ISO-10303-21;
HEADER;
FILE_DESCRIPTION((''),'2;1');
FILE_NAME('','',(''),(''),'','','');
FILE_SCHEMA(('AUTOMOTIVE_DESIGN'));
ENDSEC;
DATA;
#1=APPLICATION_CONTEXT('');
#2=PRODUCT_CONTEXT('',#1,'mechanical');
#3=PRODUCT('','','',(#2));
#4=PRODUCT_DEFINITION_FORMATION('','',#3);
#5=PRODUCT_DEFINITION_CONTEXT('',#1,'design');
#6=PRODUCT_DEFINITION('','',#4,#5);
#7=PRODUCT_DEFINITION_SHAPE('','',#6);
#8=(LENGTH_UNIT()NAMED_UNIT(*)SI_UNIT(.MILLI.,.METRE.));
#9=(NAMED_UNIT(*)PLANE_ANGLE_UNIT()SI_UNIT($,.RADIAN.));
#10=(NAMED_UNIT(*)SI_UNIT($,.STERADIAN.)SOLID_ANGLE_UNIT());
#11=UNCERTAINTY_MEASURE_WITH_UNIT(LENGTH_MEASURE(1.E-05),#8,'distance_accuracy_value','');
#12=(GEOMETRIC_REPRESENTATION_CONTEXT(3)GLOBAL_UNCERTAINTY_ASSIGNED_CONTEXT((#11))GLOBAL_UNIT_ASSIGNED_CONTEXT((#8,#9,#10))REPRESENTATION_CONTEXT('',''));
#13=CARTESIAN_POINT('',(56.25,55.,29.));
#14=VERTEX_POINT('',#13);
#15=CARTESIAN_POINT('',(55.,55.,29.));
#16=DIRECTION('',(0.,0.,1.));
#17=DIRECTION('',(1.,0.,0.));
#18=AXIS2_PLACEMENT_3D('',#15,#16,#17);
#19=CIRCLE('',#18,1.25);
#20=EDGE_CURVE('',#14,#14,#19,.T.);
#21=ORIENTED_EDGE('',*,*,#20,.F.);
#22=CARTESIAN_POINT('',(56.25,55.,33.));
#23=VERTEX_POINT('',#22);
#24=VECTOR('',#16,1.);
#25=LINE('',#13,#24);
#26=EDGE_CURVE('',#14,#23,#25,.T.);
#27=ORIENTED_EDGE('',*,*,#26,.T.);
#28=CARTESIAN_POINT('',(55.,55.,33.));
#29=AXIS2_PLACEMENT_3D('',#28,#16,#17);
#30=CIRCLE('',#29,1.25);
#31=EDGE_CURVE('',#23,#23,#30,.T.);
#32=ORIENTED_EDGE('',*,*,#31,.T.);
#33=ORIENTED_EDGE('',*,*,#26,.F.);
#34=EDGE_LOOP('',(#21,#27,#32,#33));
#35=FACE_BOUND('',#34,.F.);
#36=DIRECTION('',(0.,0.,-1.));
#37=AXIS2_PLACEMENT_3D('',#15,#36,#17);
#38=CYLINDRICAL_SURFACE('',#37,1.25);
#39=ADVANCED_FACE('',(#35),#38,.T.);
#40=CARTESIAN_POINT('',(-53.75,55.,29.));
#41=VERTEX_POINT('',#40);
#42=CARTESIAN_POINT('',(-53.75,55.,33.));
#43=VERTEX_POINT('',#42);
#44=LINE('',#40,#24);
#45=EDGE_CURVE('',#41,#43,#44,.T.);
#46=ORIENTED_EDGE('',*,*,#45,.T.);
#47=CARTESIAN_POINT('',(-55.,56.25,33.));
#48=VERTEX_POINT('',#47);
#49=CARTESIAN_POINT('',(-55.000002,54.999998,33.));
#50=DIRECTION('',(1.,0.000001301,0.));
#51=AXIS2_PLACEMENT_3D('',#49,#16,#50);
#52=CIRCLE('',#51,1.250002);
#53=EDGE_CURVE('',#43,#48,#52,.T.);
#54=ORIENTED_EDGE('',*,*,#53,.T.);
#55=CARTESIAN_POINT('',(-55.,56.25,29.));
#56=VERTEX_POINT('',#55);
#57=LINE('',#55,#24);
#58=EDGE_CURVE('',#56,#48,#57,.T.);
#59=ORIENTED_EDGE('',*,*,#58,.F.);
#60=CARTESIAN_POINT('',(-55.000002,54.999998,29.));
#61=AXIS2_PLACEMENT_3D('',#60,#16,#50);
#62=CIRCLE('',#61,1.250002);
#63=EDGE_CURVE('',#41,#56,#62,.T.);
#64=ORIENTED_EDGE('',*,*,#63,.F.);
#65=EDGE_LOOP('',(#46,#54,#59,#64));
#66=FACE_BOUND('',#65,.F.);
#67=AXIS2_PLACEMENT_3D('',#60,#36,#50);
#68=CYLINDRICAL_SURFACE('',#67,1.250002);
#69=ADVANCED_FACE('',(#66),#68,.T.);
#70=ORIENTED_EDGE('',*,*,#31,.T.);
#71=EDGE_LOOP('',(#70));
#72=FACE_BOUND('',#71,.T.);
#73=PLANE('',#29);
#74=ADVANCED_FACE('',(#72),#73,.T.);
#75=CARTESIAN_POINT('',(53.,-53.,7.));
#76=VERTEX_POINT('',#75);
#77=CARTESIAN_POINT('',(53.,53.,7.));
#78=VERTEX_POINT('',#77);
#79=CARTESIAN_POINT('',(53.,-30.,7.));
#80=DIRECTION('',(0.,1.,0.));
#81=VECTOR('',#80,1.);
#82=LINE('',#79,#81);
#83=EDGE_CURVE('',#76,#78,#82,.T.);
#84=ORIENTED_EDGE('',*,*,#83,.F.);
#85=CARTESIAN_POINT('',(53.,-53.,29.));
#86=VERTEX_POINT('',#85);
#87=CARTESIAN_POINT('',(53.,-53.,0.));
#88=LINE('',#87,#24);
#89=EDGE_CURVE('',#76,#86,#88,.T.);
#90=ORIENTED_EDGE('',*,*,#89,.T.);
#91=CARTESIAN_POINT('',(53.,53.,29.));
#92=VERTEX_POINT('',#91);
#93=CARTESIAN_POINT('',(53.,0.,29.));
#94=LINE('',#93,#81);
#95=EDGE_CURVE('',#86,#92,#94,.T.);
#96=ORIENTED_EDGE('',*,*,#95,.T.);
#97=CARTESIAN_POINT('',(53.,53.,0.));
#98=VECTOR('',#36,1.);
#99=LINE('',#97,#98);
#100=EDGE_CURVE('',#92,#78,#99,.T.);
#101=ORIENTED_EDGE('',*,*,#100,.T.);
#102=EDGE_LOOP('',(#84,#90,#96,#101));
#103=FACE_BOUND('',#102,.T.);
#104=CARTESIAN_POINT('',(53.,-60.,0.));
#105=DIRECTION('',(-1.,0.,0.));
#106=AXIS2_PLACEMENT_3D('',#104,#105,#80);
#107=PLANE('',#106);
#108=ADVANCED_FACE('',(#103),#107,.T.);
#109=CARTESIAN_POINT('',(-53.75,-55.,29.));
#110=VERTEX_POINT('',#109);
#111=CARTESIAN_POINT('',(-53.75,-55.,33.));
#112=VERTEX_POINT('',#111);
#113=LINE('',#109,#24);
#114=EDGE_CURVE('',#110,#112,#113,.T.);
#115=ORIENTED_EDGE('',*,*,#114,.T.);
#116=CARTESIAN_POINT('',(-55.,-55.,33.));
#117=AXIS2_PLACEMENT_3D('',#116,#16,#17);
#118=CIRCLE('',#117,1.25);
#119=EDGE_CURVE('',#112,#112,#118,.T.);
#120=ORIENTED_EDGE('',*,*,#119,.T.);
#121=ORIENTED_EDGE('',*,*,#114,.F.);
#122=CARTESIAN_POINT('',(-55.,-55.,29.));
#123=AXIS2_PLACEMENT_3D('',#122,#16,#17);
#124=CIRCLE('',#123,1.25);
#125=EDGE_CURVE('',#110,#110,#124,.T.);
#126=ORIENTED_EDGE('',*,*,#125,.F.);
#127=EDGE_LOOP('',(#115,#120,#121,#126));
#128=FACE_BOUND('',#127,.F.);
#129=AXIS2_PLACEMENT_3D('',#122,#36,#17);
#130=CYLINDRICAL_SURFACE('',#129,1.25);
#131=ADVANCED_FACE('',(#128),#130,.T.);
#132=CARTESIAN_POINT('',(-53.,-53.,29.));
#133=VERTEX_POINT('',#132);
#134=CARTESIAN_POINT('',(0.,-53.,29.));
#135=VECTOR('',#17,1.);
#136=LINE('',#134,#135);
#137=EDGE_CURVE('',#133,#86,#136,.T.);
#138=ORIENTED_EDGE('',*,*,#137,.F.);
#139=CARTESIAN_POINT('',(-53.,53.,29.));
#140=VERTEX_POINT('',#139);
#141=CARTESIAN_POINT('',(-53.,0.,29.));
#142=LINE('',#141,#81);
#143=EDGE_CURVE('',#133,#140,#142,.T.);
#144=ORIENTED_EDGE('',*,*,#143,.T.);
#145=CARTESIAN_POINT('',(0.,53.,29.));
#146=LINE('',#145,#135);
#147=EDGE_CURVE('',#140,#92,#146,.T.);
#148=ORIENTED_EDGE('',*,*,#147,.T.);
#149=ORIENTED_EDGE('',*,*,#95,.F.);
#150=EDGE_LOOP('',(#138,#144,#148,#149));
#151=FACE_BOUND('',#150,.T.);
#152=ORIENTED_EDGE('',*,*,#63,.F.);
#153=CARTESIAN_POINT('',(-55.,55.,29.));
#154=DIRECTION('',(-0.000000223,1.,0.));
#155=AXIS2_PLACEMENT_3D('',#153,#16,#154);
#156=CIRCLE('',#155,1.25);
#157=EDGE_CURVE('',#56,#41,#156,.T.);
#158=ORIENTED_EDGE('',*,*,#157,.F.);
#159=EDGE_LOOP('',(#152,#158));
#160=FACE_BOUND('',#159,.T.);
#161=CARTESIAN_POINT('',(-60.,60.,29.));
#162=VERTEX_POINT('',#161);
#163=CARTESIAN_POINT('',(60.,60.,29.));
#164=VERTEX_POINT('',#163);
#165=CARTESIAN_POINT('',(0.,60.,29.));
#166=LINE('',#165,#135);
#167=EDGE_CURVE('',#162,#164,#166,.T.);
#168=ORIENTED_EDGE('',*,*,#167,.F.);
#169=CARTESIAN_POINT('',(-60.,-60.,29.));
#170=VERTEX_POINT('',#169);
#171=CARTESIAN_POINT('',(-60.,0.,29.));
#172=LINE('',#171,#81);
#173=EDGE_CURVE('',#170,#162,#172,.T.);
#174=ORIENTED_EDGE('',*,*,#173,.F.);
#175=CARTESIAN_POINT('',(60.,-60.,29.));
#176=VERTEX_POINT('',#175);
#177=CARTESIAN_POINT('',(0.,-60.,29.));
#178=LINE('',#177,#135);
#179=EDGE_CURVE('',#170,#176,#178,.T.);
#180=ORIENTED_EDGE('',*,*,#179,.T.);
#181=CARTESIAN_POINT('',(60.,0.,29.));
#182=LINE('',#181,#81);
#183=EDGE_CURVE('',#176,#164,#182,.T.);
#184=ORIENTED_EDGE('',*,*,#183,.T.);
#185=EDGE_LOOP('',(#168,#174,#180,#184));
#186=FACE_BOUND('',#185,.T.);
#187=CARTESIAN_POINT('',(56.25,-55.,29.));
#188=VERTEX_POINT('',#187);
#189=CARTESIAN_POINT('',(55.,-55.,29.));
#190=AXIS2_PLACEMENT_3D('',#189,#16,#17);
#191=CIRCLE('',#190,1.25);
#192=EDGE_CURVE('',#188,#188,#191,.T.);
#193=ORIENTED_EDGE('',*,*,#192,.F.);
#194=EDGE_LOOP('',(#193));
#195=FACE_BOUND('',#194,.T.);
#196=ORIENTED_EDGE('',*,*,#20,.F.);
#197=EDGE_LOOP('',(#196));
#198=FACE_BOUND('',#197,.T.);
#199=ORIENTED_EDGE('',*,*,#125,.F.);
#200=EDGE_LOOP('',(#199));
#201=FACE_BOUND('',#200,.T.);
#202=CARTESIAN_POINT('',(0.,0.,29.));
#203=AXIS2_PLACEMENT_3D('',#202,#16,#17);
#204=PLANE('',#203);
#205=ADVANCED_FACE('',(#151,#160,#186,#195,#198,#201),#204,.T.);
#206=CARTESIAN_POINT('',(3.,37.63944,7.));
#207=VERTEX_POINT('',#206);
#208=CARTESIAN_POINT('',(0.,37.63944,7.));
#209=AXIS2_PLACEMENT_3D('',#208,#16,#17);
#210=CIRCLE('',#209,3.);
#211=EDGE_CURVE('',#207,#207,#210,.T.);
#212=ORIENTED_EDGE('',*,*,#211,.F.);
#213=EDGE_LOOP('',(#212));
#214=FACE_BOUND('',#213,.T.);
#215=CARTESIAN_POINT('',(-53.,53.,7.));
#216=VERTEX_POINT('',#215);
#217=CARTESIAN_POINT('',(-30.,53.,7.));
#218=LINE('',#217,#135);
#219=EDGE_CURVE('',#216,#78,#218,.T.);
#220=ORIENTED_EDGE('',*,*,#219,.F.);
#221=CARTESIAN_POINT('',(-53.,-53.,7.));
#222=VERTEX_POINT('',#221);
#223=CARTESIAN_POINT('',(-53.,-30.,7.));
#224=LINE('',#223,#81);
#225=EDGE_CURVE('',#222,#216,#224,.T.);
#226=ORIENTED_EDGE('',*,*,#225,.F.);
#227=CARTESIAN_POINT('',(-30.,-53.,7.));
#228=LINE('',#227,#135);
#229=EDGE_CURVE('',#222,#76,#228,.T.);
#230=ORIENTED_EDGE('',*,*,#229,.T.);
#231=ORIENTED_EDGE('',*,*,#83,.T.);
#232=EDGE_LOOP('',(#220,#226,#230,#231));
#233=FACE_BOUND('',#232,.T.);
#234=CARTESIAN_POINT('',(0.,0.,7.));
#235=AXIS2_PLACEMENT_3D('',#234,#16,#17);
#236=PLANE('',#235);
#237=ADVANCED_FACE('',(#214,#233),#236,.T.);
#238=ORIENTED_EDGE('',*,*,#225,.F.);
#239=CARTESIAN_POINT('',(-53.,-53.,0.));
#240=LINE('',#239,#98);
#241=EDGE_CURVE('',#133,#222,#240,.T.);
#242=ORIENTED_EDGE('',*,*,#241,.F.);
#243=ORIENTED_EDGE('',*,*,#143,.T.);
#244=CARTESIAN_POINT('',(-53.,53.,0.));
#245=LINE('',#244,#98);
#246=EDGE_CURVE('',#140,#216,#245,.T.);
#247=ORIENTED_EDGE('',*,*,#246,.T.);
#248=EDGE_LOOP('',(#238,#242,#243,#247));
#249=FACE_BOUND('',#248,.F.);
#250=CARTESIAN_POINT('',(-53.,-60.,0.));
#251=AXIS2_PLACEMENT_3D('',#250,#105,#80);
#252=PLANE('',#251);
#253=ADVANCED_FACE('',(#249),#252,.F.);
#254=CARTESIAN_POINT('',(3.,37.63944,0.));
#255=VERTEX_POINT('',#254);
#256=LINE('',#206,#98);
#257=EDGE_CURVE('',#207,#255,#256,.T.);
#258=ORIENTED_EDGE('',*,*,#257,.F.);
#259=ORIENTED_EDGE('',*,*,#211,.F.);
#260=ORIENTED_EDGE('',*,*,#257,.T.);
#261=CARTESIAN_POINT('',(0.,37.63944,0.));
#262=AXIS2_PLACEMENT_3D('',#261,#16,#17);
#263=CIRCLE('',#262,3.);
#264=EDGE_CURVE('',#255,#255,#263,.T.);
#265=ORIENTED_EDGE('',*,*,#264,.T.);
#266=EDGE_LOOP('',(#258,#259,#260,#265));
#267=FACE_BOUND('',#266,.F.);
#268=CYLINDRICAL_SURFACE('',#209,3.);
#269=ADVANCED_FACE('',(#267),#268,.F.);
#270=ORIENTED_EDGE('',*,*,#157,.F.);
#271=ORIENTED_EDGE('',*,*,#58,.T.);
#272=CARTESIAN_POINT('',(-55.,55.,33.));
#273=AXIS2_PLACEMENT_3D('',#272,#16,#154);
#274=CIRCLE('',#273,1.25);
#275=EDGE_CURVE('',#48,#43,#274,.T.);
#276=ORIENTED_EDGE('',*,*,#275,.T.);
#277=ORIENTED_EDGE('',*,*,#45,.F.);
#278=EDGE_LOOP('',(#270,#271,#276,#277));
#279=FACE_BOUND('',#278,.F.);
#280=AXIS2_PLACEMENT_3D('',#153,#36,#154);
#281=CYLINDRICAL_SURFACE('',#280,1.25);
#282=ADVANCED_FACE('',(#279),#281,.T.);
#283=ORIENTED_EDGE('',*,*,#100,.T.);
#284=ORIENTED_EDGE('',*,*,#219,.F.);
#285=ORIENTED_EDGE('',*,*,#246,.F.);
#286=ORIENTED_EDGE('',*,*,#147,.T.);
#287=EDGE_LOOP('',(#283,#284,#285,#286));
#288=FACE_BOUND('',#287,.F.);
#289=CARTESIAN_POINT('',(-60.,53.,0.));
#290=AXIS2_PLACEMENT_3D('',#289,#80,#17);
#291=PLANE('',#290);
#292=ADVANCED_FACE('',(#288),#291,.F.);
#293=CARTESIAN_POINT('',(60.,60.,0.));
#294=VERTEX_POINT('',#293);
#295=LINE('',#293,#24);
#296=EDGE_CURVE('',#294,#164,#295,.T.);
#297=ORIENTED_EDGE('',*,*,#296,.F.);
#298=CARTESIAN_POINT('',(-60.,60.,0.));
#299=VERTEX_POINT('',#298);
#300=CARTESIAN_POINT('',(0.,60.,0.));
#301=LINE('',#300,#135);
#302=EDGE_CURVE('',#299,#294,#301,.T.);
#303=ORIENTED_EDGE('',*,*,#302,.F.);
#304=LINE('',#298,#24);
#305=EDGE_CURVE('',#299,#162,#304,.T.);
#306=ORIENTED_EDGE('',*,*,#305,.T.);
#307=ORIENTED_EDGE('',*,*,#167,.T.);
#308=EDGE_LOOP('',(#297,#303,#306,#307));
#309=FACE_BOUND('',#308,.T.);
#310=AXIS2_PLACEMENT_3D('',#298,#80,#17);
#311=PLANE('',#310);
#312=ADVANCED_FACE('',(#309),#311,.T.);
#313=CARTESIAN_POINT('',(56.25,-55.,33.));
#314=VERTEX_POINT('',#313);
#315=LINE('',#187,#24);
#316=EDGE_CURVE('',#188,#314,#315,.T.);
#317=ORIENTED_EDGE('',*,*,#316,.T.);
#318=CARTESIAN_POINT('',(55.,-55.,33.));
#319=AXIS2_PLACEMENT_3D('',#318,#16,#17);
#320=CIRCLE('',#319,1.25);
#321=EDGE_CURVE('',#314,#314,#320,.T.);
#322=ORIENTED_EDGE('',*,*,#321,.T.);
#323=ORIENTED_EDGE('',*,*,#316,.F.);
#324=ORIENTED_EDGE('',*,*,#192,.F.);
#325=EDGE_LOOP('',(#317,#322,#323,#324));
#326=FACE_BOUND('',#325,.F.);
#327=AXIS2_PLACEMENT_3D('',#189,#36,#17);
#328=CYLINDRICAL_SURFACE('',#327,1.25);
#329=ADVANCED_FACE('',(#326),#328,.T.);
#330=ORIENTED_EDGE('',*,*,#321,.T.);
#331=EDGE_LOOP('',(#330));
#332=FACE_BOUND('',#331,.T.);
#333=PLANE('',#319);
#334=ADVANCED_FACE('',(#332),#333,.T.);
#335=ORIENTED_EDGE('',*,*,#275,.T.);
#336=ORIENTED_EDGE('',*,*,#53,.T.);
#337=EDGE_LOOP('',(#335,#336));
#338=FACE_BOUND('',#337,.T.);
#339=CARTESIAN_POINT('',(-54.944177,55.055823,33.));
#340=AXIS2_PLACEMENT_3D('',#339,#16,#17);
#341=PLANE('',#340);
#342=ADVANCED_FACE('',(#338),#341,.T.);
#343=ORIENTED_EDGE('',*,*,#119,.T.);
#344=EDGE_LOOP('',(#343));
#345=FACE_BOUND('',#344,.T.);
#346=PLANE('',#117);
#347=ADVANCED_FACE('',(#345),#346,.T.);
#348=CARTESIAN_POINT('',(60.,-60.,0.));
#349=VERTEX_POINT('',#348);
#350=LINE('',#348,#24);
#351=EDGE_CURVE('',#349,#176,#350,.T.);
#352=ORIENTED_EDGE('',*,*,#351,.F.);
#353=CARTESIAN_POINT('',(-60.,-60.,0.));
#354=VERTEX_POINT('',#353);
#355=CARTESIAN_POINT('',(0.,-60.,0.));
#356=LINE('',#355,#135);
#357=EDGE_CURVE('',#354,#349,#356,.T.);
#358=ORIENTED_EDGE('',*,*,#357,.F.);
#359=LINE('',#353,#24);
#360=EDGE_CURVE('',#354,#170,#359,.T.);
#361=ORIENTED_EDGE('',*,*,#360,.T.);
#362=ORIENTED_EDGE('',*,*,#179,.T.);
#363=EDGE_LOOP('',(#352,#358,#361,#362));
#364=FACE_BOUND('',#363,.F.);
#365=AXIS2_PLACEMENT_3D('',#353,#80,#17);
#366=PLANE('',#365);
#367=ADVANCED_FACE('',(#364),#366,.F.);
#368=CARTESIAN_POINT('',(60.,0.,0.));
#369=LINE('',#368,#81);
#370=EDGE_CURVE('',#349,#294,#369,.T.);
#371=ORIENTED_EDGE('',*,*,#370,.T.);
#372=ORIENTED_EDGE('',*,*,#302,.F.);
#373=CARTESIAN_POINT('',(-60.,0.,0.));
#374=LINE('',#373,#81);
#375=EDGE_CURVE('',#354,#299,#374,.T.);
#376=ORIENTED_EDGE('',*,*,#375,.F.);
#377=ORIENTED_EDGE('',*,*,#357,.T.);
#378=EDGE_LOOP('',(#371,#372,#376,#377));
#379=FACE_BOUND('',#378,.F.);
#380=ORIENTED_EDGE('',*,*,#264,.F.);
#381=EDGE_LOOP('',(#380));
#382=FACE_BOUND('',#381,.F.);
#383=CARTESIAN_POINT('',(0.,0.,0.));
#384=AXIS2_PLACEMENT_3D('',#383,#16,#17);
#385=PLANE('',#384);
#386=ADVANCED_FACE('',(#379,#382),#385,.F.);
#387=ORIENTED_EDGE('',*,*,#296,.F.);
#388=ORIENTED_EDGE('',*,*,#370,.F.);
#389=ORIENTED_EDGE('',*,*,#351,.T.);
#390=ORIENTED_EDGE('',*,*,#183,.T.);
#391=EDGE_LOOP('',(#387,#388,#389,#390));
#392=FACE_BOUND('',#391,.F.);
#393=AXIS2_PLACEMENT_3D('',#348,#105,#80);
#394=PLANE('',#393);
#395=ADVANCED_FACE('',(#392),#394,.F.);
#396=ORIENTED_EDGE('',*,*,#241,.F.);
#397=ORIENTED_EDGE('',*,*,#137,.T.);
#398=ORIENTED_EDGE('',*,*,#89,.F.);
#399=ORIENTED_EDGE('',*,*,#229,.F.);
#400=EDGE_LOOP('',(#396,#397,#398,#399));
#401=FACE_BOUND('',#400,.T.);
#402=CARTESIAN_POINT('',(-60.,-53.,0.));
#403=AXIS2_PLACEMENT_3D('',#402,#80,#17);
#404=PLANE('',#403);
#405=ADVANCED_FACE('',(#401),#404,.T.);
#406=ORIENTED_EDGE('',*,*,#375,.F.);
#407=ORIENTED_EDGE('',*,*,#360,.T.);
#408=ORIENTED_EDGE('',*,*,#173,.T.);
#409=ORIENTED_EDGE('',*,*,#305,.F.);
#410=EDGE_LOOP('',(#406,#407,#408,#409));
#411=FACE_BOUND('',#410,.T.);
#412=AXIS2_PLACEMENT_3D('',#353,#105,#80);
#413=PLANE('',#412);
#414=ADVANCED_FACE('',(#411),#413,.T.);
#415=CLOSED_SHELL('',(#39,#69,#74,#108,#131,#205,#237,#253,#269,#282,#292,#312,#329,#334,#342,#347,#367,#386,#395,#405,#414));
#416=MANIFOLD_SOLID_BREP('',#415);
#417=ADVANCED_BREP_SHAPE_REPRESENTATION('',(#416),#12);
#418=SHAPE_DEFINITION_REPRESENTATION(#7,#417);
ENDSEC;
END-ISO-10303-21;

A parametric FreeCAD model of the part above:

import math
import FreeCAD as App
import Part
import Sketcher
from FreeCAD import Vector
Q = App.Units.Quantity


def faces_at(feature, points):
    """Names of the faces that lie closest to the given points."""
    faces = feature.Shape.Faces
    near = lambda p: min(range(len(faces)), key=lambda i: faces[i].distToShape(Part.Vertex(*p))[0])
    return sorted({f"Face{near(p) + 1}" for p in points})

doc = App.newDocument("Part")
body = doc.addObject("PartDesign::Body", "Body")

sketch1 = body.newObject("Sketcher::SketchObject", "Sketch")
sketch1.AttachmentSupport = (doc.getObject("XY_Plane"), [""])
sketch1.MapMode = "FlatFace"
sketch1.addGeometry([
    Part.LineSegment(Vector(-60, 60, 0), Vector(-60, -60, 0)),
    Part.LineSegment(Vector(-60, -60, 0), Vector(60, -60, 0)),
    Part.LineSegment(Vector(60, -60, 0), Vector(60, 60, 0)),
    Part.LineSegment(Vector(60, 60, 0), Vector(-60, 60, 0)),
], False)
sketch1.addConstraint([
    Sketcher.Constraint("Coincident", 0, 2, 1, 1),
    Sketcher.Constraint("Coincident", 1, 2, 2, 1),
    Sketcher.Constraint("Coincident", 2, 2, 3, 1),
    Sketcher.Constraint("Coincident", 3, 2, 0, 1),
    Sketcher.Constraint("Vertical", 0),
    Sketcher.Constraint("Horizontal", 1),
    Sketcher.Constraint("Vertical", 2),
    Sketcher.Constraint("Horizontal", 3),
    Sketcher.Constraint("Symmetric", 0, 2, 2, 2, -1, 1),
    Sketcher.Constraint("Equal", 3, 0),
    Sketcher.Constraint("DistanceX", 1, 1, 1, 2, Q("120 mm")),
])
pad1 = body.newObject("PartDesign::Pad", "Pad")
pad1.Profile = sketch1
pad1.Length = 29
doc.recompute()

thickness = body.newObject("PartDesign::Thickness", "Thickness")
thickness.Base = (pad1, faces_at(pad1, [(0, 0, 29)]))
thickness.Value = 7
thickness.Reversed = True
thickness.Join = "Arc"

sketch2 = body.newObject("Sketcher::SketchObject", "Sketch001")
sketch2.AttachmentSupport = (doc.getObject("XY_Plane"), [""])
sketch2.MapMode = "FlatFace"
sketch2.AttachmentOffset = App.Placement(Vector(0, 0, 29), App.Rotation())
sketch2.addGeometry([
    Part.ArcOfCircle(Part.Circle(Vector(-55, 55, 0), Vector(0, 0, 1), 1.25), math.radians(90.000013), math.radians(359.999987)),
    Part.ArcOfCircle(Part.Circle(Vector(-55.000002, 54.999998, 0), Vector(0, 0, 1), 1.250002), math.radians(0.000075), math.radians(89.999925)),
    Part.Circle(Vector(55, 55, 0), Vector(0, 0, 1), 1.25),
    Part.Circle(Vector(55, -55, 0), Vector(0, 0, 1), 1.25),
    Part.Circle(Vector(-55, -55, 0), Vector(0, 0, 1), 1.25),
], False)
sketch2.addConstraint([
    Sketcher.Constraint("Tangent", 0, 1, 1, 2),
    Sketcher.Constraint("Coincident", 1, 1, 0, 2),
    Sketcher.Constraint("Equal", 1, 2),
    Sketcher.Constraint("Equal", 2, 3),
    Sketcher.Constraint("Equal", 3, 4),
    Sketcher.Constraint("Symmetric", 0, 3, 3, 3, -1, 1),
    Sketcher.Constraint("Symmetric", 2, 3, 4, 3, -1, 1),
    Sketcher.Constraint("Symmetric", 0, 3, 2, 3, -2),
    Sketcher.Constraint("Horizontal", 2, 3, 1, 1),
    Sketcher.Constraint("Vertical", 4, 3, 0, 1),
    Sketcher.Constraint("Diameter", 2, Q("2.5 mm")),
    Sketcher.Constraint("DistanceX", 0, 3, -1, 1, Q("55 mm")),
    Sketcher.Constraint("DistanceY", -1, 1, 0, 3, Q("55 mm")),
])
pad2 = body.newObject("PartDesign::Pad", "Pad001")
pad2.Profile = sketch2
pad2.Length = 4

sketch3 = body.newObject("Sketcher::SketchObject", "Sketch002")
sketch3.AttachmentSupport = (doc.getObject("XY_Plane"), [""])
sketch3.MapMode = "FlatFace"
sketch3.AttachmentOffset = App.Placement(Vector(0, 0, 7), App.Rotation())
sketch3.addGeometry(Part.Circle(Vector(0, 37.63944, 0), Vector(0, 0, 1), 3), False)
sketch3.addConstraint([
    Sketcher.Constraint("PointOnObject", 0, 3, -2),
    Sketcher.Constraint("Diameter", 0, Q("6 mm")),
    Sketcher.Constraint("DistanceY", -1, 1, 0, 3, Q("37.63944 mm")),
])
pocket1 = body.newObject("PartDesign::Pocket", "Pocket")
pocket1.Profile = sketch3
pocket1.Length = 7

doc.recompute()
